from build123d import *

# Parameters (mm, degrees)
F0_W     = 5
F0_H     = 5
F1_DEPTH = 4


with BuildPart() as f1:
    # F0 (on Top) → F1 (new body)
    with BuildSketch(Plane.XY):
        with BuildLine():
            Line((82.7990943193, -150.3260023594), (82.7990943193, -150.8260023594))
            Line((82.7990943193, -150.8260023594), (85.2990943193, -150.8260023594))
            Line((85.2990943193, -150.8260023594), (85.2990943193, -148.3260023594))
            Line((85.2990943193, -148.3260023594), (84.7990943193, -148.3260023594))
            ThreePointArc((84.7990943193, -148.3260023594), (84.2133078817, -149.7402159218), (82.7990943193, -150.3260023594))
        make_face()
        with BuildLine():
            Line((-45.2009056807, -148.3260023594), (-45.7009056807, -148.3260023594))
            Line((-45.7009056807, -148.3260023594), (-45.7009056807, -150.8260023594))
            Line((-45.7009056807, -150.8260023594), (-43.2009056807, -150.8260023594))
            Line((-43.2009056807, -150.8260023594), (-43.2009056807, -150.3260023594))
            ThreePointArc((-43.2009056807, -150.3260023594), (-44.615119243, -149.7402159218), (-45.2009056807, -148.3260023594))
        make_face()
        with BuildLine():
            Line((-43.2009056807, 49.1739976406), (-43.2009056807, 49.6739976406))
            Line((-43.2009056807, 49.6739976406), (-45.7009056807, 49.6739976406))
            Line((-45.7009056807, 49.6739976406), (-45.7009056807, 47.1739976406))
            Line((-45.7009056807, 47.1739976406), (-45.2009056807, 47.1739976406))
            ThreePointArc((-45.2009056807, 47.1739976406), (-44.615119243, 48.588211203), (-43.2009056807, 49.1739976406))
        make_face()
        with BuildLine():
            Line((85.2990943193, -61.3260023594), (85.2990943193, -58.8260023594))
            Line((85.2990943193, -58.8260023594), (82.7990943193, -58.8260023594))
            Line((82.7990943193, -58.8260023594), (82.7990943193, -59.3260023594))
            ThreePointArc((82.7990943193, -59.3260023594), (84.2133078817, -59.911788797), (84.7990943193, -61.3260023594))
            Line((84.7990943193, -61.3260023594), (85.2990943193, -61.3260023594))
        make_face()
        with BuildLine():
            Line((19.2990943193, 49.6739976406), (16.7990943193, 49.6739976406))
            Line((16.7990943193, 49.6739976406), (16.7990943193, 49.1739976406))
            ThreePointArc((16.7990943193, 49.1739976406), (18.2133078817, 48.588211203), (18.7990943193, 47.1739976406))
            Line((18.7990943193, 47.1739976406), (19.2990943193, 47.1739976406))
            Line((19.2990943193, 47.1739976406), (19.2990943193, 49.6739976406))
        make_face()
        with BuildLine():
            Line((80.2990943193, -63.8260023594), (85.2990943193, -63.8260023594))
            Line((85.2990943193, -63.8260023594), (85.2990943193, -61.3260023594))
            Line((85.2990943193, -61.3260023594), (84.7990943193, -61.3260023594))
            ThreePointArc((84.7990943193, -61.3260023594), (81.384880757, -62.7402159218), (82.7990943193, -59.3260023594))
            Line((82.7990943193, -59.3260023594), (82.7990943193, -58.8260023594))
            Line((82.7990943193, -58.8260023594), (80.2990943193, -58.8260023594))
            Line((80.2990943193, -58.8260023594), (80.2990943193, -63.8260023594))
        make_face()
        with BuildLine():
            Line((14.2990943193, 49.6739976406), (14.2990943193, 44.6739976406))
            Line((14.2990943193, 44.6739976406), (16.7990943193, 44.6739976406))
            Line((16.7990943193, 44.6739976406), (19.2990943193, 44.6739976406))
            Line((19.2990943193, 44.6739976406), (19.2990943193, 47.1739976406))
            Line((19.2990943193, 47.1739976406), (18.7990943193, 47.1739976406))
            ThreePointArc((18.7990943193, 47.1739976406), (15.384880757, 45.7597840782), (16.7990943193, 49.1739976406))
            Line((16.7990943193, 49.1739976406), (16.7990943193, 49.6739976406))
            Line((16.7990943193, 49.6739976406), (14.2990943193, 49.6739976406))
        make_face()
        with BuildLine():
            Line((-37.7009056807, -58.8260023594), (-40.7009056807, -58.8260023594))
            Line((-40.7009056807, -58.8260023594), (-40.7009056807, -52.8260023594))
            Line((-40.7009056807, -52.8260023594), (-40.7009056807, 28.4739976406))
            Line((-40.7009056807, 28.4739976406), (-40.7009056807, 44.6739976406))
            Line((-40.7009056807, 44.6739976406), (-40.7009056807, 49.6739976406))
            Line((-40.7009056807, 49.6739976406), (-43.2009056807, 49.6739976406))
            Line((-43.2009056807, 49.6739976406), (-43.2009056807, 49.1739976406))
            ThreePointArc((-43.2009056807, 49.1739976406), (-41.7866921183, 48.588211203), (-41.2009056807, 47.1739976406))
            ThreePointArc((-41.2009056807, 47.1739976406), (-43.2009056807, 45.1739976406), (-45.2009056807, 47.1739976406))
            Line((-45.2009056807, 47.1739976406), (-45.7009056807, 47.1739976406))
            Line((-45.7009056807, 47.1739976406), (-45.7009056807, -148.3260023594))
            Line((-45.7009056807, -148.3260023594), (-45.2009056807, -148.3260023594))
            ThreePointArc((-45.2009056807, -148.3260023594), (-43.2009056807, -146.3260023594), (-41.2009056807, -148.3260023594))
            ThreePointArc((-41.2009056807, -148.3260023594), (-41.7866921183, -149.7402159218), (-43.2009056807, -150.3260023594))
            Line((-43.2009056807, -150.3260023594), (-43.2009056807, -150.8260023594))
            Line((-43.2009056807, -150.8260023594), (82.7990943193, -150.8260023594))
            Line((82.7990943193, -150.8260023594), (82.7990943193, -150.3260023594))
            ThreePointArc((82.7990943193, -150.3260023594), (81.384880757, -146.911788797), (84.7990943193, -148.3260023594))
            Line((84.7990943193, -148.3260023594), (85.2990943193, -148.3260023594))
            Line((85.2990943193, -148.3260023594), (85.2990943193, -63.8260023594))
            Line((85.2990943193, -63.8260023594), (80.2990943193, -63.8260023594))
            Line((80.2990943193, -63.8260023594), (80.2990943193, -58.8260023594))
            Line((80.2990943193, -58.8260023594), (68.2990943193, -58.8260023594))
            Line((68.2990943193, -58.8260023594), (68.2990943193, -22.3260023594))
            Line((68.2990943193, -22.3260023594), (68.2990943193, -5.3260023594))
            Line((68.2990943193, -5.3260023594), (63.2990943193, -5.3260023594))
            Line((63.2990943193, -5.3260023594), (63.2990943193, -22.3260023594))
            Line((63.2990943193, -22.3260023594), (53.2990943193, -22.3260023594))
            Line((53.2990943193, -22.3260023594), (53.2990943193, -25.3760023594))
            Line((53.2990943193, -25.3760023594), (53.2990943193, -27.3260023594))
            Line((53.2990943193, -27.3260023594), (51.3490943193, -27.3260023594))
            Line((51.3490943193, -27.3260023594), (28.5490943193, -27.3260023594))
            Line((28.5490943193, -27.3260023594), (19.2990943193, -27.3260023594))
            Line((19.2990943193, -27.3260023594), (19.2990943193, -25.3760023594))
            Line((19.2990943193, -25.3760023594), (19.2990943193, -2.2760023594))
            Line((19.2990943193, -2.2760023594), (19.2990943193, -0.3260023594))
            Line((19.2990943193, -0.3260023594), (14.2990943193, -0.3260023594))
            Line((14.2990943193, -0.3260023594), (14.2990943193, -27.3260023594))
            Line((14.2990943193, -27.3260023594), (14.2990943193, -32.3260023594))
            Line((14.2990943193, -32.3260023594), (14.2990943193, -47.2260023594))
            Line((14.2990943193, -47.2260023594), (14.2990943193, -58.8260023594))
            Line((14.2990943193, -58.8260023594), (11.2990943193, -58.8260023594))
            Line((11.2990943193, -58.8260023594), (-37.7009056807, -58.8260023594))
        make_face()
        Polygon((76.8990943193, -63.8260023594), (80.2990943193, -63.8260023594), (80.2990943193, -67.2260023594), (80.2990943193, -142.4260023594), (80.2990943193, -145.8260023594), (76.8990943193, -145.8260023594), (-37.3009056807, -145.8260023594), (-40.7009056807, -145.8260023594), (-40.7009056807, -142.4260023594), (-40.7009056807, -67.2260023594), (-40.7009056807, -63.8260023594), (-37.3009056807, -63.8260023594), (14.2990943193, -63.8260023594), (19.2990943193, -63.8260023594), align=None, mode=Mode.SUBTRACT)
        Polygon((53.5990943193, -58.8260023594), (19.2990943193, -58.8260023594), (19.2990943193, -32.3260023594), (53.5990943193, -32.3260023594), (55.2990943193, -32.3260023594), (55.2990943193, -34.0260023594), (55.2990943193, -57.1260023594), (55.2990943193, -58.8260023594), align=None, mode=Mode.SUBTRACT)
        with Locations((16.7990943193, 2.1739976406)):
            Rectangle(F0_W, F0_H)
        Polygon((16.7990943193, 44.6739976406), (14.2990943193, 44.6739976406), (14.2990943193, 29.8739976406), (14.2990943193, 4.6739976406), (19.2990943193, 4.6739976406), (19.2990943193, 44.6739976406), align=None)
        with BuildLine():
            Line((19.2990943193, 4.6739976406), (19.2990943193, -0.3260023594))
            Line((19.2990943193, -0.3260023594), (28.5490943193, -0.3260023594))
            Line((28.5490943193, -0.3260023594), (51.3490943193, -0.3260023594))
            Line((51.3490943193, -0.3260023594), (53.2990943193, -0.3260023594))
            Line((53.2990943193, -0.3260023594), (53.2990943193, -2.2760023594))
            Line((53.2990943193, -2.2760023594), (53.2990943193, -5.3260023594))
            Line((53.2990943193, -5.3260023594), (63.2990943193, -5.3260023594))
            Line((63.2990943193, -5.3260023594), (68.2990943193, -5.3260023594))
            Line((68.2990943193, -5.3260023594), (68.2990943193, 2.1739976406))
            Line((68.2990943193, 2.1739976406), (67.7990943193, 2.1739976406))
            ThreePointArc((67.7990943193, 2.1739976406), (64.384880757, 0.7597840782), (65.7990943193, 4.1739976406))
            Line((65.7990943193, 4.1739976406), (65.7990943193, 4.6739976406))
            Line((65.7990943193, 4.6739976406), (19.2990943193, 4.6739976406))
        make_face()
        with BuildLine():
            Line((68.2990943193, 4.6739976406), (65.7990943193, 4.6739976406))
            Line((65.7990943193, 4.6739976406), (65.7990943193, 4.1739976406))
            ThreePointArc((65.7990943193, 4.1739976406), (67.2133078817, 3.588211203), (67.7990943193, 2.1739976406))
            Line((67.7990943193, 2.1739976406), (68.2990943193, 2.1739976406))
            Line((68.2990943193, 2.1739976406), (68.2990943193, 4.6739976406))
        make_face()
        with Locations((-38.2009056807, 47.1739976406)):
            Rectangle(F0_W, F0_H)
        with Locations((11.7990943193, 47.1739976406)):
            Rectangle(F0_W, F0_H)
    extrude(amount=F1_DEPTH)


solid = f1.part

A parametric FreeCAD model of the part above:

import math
import FreeCAD as App
import Part
import Sketcher
from FreeCAD import Vector
Q = App.Units.Quantity

doc = App.newDocument("Part")
body = doc.addObject("PartDesign::Body", "Body")

# Sketch on XY plane
sketch1 = body.newObject("Sketcher::SketchObject", "Sketch")
sketch1.AttachmentSupport = (doc.getObject("XY_Plane"), [""])
sketch1.MapMode = "FlatFace"
sketch1.addGeometry(Part.LineSegment(Vector(85.3, -150.8, 0), Vector(85.3, -58.8, 0)), False)
sketch1.addGeometry(Part.LineSegment(Vector(85.3, -58.8, 0), Vector(68.3, -58.8, 0)), False)
sketch1.addGeometry(Part.LineSegment(Vector(68.3, -58.8, 0), Vector(68.3, 4.7, 0)), False)
sketch1.addGeometry(Part.LineSegment(Vector(68.3, 4.7, 0), Vector(19.3, 4.7, 0)), False)
sketch1.addGeometry(Part.LineSegment(Vector(19.3, 4.7, 0), Vector(19.3, 49.7, 0)), False)
sketch1.addGeometry(Part.LineSegment(Vector(19.3, 49.7, 0), Vector(9.3, 49.7, 0)), False)
sketch1.addGeometry(Part.LineSegment(Vector(9.3, 49.7, 0), Vector(9.3, 44.7, 0)), False)
sketch1.addGeometry(Part.LineSegment(Vector(9.3, 44.7, 0), Vector(14.3, 44.7, 0)), False)
sketch1.addGeometry(Part.LineSegment(Vector(14.3, 44.7, 0), Vector(14.3, -58.8, 0)), False)
sketch1.addGeometry(Part.LineSegment(Vector(14.3, -58.8, 0), Vector(-40.7, -58.8, 0)), False)
sketch1.addGeometry(Part.LineSegment(Vector(-40.7, -58.8, 0), Vector(-40.7, 44.7, 0)), False)
sketch1.addGeometry(Part.LineSegment(Vector(-40.7, 44.7, 0), Vector(-35.7, 44.7, 0)), False)
sketch1.addGeometry(Part.LineSegment(Vector(-35.7, 44.7, 0), Vector(-35.7, 49.7, 0)), False)
sketch1.addGeometry(Part.LineSegment(Vector(-35.7, 49.7, 0), Vector(-45.7, 49.7, 0)), False)
sketch1.addGeometry(Part.LineSegment(Vector(-45.7, 49.7, 0), Vector(-45.7, -150.8, 0)), False)
sketch1.addGeometry(Part.LineSegment(Vector(-45.7, -150.8, 0), Vector(85.3, -150.8, 0)), False)
sketch1.addGeometry(Part.ArcOfCircle(Part.Circle(Vector(65.8, 2.2, 0), Vector(0, 0, 1), 2), math.radians(90), math.radians(360)), False)
sketch1.addGeometry(Part.ArcOfCircle(Part.Circle(Vector(65.8, 2.2, 0), Vector(0, 0, 1), 2), math.radians(0), math.radians(90)), False)
sketch1.addGeometry(Part.LineSegment(Vector(63.3, -5.3, 0), Vector(63.3, -22.3, 0)), False)
sketch1.addGeometry(Part.LineSegment(Vector(63.3, -22.3, 0), Vector(53.3, -22.3, 0)), False)
sketch1.addGeometry(Part.LineSegment(Vector(53.3, -22.3, 0), Vector(53.3, -27.3, 0)), False)
sketch1.addGeometry(Part.LineSegment(Vector(53.3, -27.3, 0), Vector(19.3, -27.3, 0)), False)
sketch1.addGeometry(Part.LineSegment(Vector(19.3, -27.3, 0), Vector(19.3, -0.3, 0)), False)
sketch1.addGeometry(Part.LineSegment(Vector(19.3, -0.3, 0), Vector(53.3, -0.3, 0)), False)
sketch1.addGeometry(Part.LineSegment(Vector(53.3, -0.3, 0), Vector(53.3, -5.3, 0)), False)
sketch1.addGeometry(Part.LineSegment(Vector(53.3, -5.3, 0), Vector(63.3, -5.3, 0)), False)
sketch1.addGeometry(Part.ArcOfCircle(Part.Circle(Vector(-43.2, -148.3, 0), Vector(0, 0, 1), 2), math.radians(0), math.radians(180)), False)
sketch1.addGeometry(Part.ArcOfCircle(Part.Circle(Vector(-43.2, -148.3, 0), Vector(0, 0, 1), 2), math.radians(-90), math.radians(0)), False)
sketch1.addGeometry(Part.ArcOfCircle(Part.Circle(Vector(-43.2, -148.3, 0), Vector(0, 0, 1), 2), math.radians(180), math.radians(270)), False)
sketch1.addGeometry(Part.LineSegment(Vector(-40.7, -63.8, 0), Vector(80.3, -63.8, 0)), False)
sketch1.addGeometry(Part.LineSegment(Vector(80.3, -63.8, 0), Vector(80.3, -145.8, 0)), False)
sketch1.addGeometry(Part.LineSegment(Vector(80.3, -145.8, 0), Vector(-40.7, -145.8, 0)), False)
sketch1.addGeometry(Part.LineSegment(Vector(-40.7, -145.8, 0), Vector(-40.7, -63.8, 0)), False)
sketch1.addGeometry(Part.ArcOfCircle(Part.Circle(Vector(82.8, -148.3, 0), Vector(0, 0, 1), 2), math.radians(-90), math.radians(0)), False)
sketch1.addGeometry(Part.ArcOfCircle(Part.Circle(Vector(82.8, -148.3, 0), Vector(0, 0, 1), 2), math.radians(0), math.radians(270)), False)
sketch1.addGeometry(Part.ArcOfCircle(Part.Circle(Vector(82.8, -61.3, 0), Vector(0, 0, 1), 2), math.radians(0), math.radians(90)), False)
sketch1.addGeometry(Part.ArcOfCircle(Part.Circle(Vector(82.8, -61.3, 0), Vector(0, 0, 1), 2), math.radians(90), math.radians(360)), False)
sketch1.addGeometry(Part.ArcOfCircle(Part.Circle(Vector(-43.2, 47.2, 0), Vector(0, 0, 1), 2), math.radians(0), math.radians(90)), False)
sketch1.addGeometry(Part.ArcOfCircle(Part.Circle(Vector(-43.2, 47.2, 0), Vector(0, 0, 1), 2), math.radians(180), math.radians(360)), False)
sketch1.addGeometry(Part.ArcOfCircle(Part.Circle(Vector(-43.2, 47.2, 0), Vector(0, 0, 1), 2), math.radians(90), math.radians(180)), False)
sketch1.addGeometry(Part.LineSegment(Vector(55.3, -58.8, 0), Vector(19.3, -58.8, 0)), False)
sketch1.addGeometry(Part.LineSegment(Vector(19.3, -58.8, 0), Vector(19.3, -32.3, 0)), False)
sketch1.addGeometry(Part.LineSegment(Vector(19.3, -32.3, 0), Vector(55.3, -32.3, 0)), False)
sketch1.addGeometry(Part.LineSegment(Vector(55.3, -32.3, 0), Vector(55.3, -58.8, 0)), False)
sketch1.addGeometry(Part.ArcOfCircle(Part.Circle(Vector(16.8, 47.2, 0), Vector(0, 0, 1), 2), math.radians(90), math.radians(360)), False)
sketch1.addGeometry(Part.ArcOfCircle(Part.Circle(Vector(16.8, 47.2, 0), Vector(0, 0, 1), 2), math.radians(0), math.radians(90)), False)
sketch1.addConstraint(Sketcher.Constraint("Coincident", 0, 2, 1, 1))
sketch1.addConstraint(Sketcher.Constraint("Coincident", 1, 2, 2, 1))
sketch1.addConstraint(Sketcher.Constraint("Coincident", 2, 2, 3, 1))
sketch1.addConstraint(Sketcher.Constraint("Coincident", 3, 2, 4, 1))
sketch1.addConstraint(Sketcher.Constraint("Coincident", 4, 2, 5, 1))
sketch1.addConstraint(Sketcher.Constraint("Coincident", 5, 2, 6, 1))
sketch1.addConstraint(Sketcher.Constraint("Coincident", 6, 2, 7, 1))
sketch1.addConstraint(Sketcher.Constraint("Coincident", 7, 2, 8, 1))
sketch1.addConstraint(Sketcher.Constraint("Coincident", 8, 2, 9, 1))
sketch1.addConstraint(Sketcher.Constraint("Coincident", 9, 2, 10, 1))
sketch1.addConstraint(Sketcher.Constraint("Coincident", 10, 2, 11, 1))
sketch1.addConstraint(Sketcher.Constraint("Coincident", 11, 2, 12, 1))
sketch1.addConstraint(Sketcher.Constraint("Coincident", 12, 2, 13, 1))
sketch1.addConstraint(Sketcher.Constraint("Coincident", 13, 2, 14, 1))
sketch1.addConstraint(Sketcher.Constraint("Coincident", 14, 2, 15, 1))
sketch1.addConstraint(Sketcher.Constraint("Coincident", 15, 2, 0, 1))
sketch1.addConstraint(Sketcher.Constraint("Tangent", 16, 1, 17, 2))
sketch1.addConstraint(Sketcher.Constraint("Coincident", 17, 1, 16, 2))
sketch1.addConstraint(Sketcher.Constraint("Coincident", 18, 2, 19, 1))
sketch1.addConstraint(Sketcher.Constraint("Coincident", 19, 2, 20, 1))
sketch1.addConstraint(Sketcher.Constraint("Coincident", 20, 2, 21, 1))
sketch1.addConstraint(Sketcher.Constraint("Coincident", 21, 2, 22, 1))
sketch1.addConstraint(Sketcher.Constraint("Coincident", 22, 2, 23, 1))
sketch1.addConstraint(Sketcher.Constraint("Coincident", 23, 2, 24, 1))
sketch1.addConstraint(Sketcher.Constraint("Coincident", 24, 2, 25, 1))
sketch1.addConstraint(Sketcher.Constraint("Coincident", 25, 2, 18, 1))
sketch1.addConstraint(Sketcher.Constraint("Tangent", 26, 1, 27, 2))
sketch1.addConstraint(Sketcher.Constraint("Tangent", 27, 1, 28, 2))
sketch1.addConstraint(Sketcher.Constraint("Tangent", 28, 1, 26, 2))
sketch1.addConstraint(Sketcher.Constraint("Coincident", 29, 2, 30, 1))
sketch1.addConstraint(Sketcher.Constraint("Coincident", 30, 2, 31, 1))
sketch1.addConstraint(Sketcher.Constraint("Coincident", 31, 2, 32, 1))
sketch1.addConstraint(Sketcher.Constraint("Coincident", 32, 2, 29, 1))
sketch1.addConstraint(Sketcher.Constraint("Tangent", 33, 1, 34, 2))
sketch1.addConstraint(Sketcher.Constraint("Coincident", 34, 1, 33, 2))
sketch1.addConstraint(Sketcher.Constraint("Tangent", 35, 1, 36, 2))
sketch1.addConstraint(Sketcher.Constraint("Coincident", 36, 1, 35, 2))
sketch1.addConstraint(Sketcher.Constraint("Tangent", 37, 1, 38, 2))
sketch1.addConstraint(Sketcher.Constraint("Tangent", 38, 1, 39, 2))
sketch1.addConstraint(Sketcher.Constraint("Tangent", 39, 1, 37, 2))
sketch1.addConstraint(Sketcher.Constraint("Coincident", 40, 2, 41, 1))
sketch1.addConstraint(Sketcher.Constraint("Coincident", 41, 2, 42, 1))
sketch1.addConstraint(Sketcher.Constraint("Coincident", 42, 2, 43, 1))
sketch1.addConstraint(Sketcher.Constraint("Coincident", 43, 2, 40, 1))
sketch1.addConstraint(Sketcher.Constraint("Tangent", 44, 1, 45, 2))
sketch1.addConstraint(Sketcher.Constraint("Coincident", 45, 1, 44, 2))
sketch1.addConstraint(Sketcher.Constraint("Vertical", 0))
sketch1.addConstraint(Sketcher.Constraint("Horizontal", 1))
sketch1.addConstraint(Sketcher.Constraint("Vertical", 2))
sketch1.addConstraint(Sketcher.Constraint("Horizontal", 3))
sketch1.addConstraint(Sketcher.Constraint("Vertical", 4))
sketch1.addConstraint(Sketcher.Constraint("Horizontal", 5))
sketch1.addConstraint(Sketcher.Constraint("Vertical", 6))
sketch1.addConstraint(Sketcher.Constraint("Horizontal", 7))
sketch1.addConstraint(Sketcher.Constraint("Vertical", 8))
sketch1.addConstraint(Sketcher.Constraint("Horizontal", 9))
sketch1.addConstraint(Sketcher.Constraint("Vertical", 10))
sketch1.addConstraint(Sketcher.Constraint("Horizontal", 11))
sketch1.addConstraint(Sketcher.Constraint("Vertical", 12))
sketch1.addConstraint(Sketcher.Constraint("Horizontal", 13))
sketch1.addConstraint(Sketcher.Constraint("Vertical", 14))
sketch1.addConstraint(Sketcher.Constraint("Horizontal", 15))
sketch1.addConstraint(Sketcher.Constraint("Vertical", 18))
sketch1.addConstraint(Sketcher.Constraint("Horizontal", 19))
sketch1.addConstraint(Sketcher.Constraint("Vertical", 20))
sketch1.addConstraint(Sketcher.Constraint("Horizontal", 21))
sketch1.addConstraint(Sketcher.Constraint("Vertical", 22))
sketch1.addConstraint(Sketcher.Constraint("Horizontal", 23))
sketch1.addConstraint(Sketcher.Constraint("Vertical", 24))
sketch1.addConstraint(Sketcher.Constraint("Horizontal", 25))
sketch1.addConstraint(Sketcher.Constraint("Horizontal", 29))
sketch1.addConstraint(Sketcher.Constraint("Vertical", 30))
sketch1.addConstraint(Sketcher.Constraint("Horizontal", 31))
sketch1.addConstraint(Sketcher.Constraint("Vertical", 32))
sketch1.addConstraint(Sketcher.Constraint("Horizontal", 40))
sketch1.addConstraint(Sketcher.Constraint("Vertical", 41))
sketch1.addConstraint(Sketcher.Constraint("Horizontal", 42))
sketch1.addConstraint(Sketcher.Constraint("Vertical", 43))
sketch1.addConstraint(Sketcher.Constraint("Equal", 17, 26))
sketch1.addConstraint(Sketcher.Constraint("Equal", 28, 33))
sketch1.addConstraint(Sketcher.Constraint("Equal", 34, 35))
sketch1.addConstraint(Sketcher.Constraint("Equal", 36, 37))
sketch1.addConstraint(Sketcher.Constraint("Equal", 39, 44))
sketch1.addConstraint(Sketcher.Constraint("Horizontal", 28, 3, 33, 3))
sketch1.addConstraint(Sketcher.Constraint("Horizontal", 39, 3, 44, 3))
sketch1.addConstraint(Sketcher.Constraint("Horizontal", 1, 2, 8, 2))
sketch1.addConstraint(Sketcher.Constraint("Horizontal", 7, 2, 10, 2))
sketch1.addConstraint(Sketcher.Constraint("Horizontal", 5, 2, 12, 2))
sketch1.addConstraint(Sketcher.Constraint("Horizontal", 16, 3, 17, 1))
sketch1.addConstraint(Sketcher.Constraint("Horizontal", 34, 3, 26, 1))
sketch1.addConstraint(Sketcher.Constraint("Horizontal", 26, 1, 28, 1))
sketch1.addConstraint(Sketcher.Constraint("Horizontal", 28, 1, 34, 1))
sketch1.addConstraint(Sketcher.Constraint("Horizontal", 36, 3, 35, 1))
sketch1.addConstraint(Sketcher.Constraint("Horizontal", 45, 3, 37, 1))
sketch1.addConstraint(Sketcher.Constraint("Horizontal", 37, 1, 38, 1))
sketch1.addConstraint(Sketcher.Constraint("Horizontal", 9, 2, 40, 2))
sketch1.addConstraint(Sketcher.Constraint("Horizontal", 38, 1, 45, 1))
sketch1.addConstraint(Sketcher.Constraint("Vertical", 34, 3, 35, 3))
sketch1.addConstraint(Sketcher.Constraint("Vertical", 28, 3, 37, 3))
sketch1.addConstraint(Sketcher.Constraint("Vertical", 17, 3, 16, 1))
sketch1.addConstraint(Sketcher.Constraint("Vertical", 4, 2, 21, 2))
sketch1.addConstraint(Sketcher.Constraint("Vertical", 20, 2, 23, 2))
sketch1.addConstraint(Sketcher.Constraint("Vertical", 39, 3, 27, 1))
sketch1.addConstraint(Sketcher.Constraint("Vertical", 10, 2, 31, 2))
sketch1.addConstraint(Sketcher.Constraint("Vertical", 36, 3, 33, 1))
sketch1.addConstraint(Sketcher.Constraint("Vertical", 33, 1, 36, 1))
sketch1.addConstraint(Sketcher.Constraint("Vertical", 27, 1, 39, 1))
sketch1.addConstraint(Sketcher.Constraint("Vertical", 22, 2, 40, 2))
sketch1.addConstraint(Sketcher.Constraint("Vertical", 45, 3, 44, 1))
sketch1.addConstraint(Sketcher.Constraint("Equal", 7, 11))
sketch1.addConstraint(Sketcher.Constraint("Equal", 5, 13))
sketch1.addConstraint(Sketcher.Constraint("Equal", 13, 19))
sketch1.addConstraint(Sketcher.Constraint("Equal", 11, 6))
sketch1.addConstraint(Sketcher.Constraint("Equal", 1, 18))
sketch1.addConstraint(Sketcher.Constraint("Equal", 12, 20))
sketch1.addConstraint(Sketcher.Constraint("Equal", 20, 24))
sketch1.addConstraint(Sketcher.Constraint("Radius", 16, Q("2 mm")))
sketch1.addConstraint(Sketcher.Constraint("DistanceX", 1, 2, 1, 1, Q("17 mm")))
sketch1.addConstraint(Sketcher.Constraint("DistanceX", 3, 2, 3, 1, Q("49 mm")))
sketch1.addConstraint(Sketcher.Constraint("DistanceX", 5, 2, 5, 1, Q("10 mm")))
sketch1.addConstraint(Sketcher.Constraint("DistanceX", 7, 1, 7, 2, Q("5 mm")))
sketch1.addConstraint(Sketcher.Constraint("DistanceX", 9, 2, 9, 1, Q("55 mm")))
sketch1.addConstraint(Sketcher.Constraint("DistanceX", 21, 2, 21, 1, Q("34 mm")))
sketch1.addConstraint(Sketcher.Constraint("DistanceX", 29, 1, 29, 2, Q("121 mm")))
sketch1.addConstraint(Sketcher.Constraint("DistanceX", 40, 2, 40, 1, Q("36 mm")))
sketch1.addConstraint(Sketcher.Constraint("DistanceY", 0, 1, 0, 2, Q("92 mm")))
sketch1.addConstraint(Sketcher.Constraint("DistanceY", 4, 1, 4, 2, Q("45 mm")))
sketch1.addConstraint(Sketcher.Constraint("DistanceY", 30, 2, 30, 1, Q("82 mm")))
sketch1.addConstraint(Sketcher.Constraint("DistanceY", 2, 1, 2, 2, Q("63.5 mm")))
sketch1.addConstraint(Sketcher.Constraint("DistanceY", 41, 1, 41, 2, Q("26.5 mm")))
sketch1.addConstraint(Sketcher.Constraint("DistanceX", 26, 3, 16, 3, Q("109 mm")))
sketch1.addConstraint(Sketcher.Constraint("DistanceX", 26, 3, 33, 3, Q("126 mm")))
sketch1.addConstraint(Sketcher.Constraint("DistanceY", 33, 3, 35, 3, Q("87 mm")))
sketch1.addConstraint(Sketcher.Constraint("DistanceY", 16, 3, 37, 3, Q("45 mm")))
sketch1.addConstraint(Sketcher.Constraint("DistanceX", 37, 3, 44, 3, Q("60 mm")))
sketch1.addConstraint(Sketcher.Constraint("DistanceY", 0, 2, 16, 3, Q("61 mm")))
sketch1.addConstraint(Sketcher.Constraint("DistanceY", 18, 2, 2, 2, Q("27 mm")))
sketch1.addConstraint(Sketcher.Constraint("DistanceY", 29, 2, 0, 2, Q("5 mm")))
sketch1.addConstraint(Sketcher.Constraint("DistanceY", 26, 3, 16, 3, Q("150.5 mm")))
sketch1.addConstraint(Sketcher.Constraint("DistanceX", 35, 3, 0, 2, Q("2.5 mm")))
sketch1.addConstraint(Sketcher.Constraint("DistanceX", -1, 1, 16, 3, Q("65.799094 mm")))
sketch1.addConstraint(Sketcher.Constraint("DistanceY", -1, 1, 16, 3, Q("2.173998 mm")))
pad1 = body.newObject("PartDesign::Pad", "Pad")
pad1.Profile = sketch1
pad1.Length = 4

doc.recompute()
